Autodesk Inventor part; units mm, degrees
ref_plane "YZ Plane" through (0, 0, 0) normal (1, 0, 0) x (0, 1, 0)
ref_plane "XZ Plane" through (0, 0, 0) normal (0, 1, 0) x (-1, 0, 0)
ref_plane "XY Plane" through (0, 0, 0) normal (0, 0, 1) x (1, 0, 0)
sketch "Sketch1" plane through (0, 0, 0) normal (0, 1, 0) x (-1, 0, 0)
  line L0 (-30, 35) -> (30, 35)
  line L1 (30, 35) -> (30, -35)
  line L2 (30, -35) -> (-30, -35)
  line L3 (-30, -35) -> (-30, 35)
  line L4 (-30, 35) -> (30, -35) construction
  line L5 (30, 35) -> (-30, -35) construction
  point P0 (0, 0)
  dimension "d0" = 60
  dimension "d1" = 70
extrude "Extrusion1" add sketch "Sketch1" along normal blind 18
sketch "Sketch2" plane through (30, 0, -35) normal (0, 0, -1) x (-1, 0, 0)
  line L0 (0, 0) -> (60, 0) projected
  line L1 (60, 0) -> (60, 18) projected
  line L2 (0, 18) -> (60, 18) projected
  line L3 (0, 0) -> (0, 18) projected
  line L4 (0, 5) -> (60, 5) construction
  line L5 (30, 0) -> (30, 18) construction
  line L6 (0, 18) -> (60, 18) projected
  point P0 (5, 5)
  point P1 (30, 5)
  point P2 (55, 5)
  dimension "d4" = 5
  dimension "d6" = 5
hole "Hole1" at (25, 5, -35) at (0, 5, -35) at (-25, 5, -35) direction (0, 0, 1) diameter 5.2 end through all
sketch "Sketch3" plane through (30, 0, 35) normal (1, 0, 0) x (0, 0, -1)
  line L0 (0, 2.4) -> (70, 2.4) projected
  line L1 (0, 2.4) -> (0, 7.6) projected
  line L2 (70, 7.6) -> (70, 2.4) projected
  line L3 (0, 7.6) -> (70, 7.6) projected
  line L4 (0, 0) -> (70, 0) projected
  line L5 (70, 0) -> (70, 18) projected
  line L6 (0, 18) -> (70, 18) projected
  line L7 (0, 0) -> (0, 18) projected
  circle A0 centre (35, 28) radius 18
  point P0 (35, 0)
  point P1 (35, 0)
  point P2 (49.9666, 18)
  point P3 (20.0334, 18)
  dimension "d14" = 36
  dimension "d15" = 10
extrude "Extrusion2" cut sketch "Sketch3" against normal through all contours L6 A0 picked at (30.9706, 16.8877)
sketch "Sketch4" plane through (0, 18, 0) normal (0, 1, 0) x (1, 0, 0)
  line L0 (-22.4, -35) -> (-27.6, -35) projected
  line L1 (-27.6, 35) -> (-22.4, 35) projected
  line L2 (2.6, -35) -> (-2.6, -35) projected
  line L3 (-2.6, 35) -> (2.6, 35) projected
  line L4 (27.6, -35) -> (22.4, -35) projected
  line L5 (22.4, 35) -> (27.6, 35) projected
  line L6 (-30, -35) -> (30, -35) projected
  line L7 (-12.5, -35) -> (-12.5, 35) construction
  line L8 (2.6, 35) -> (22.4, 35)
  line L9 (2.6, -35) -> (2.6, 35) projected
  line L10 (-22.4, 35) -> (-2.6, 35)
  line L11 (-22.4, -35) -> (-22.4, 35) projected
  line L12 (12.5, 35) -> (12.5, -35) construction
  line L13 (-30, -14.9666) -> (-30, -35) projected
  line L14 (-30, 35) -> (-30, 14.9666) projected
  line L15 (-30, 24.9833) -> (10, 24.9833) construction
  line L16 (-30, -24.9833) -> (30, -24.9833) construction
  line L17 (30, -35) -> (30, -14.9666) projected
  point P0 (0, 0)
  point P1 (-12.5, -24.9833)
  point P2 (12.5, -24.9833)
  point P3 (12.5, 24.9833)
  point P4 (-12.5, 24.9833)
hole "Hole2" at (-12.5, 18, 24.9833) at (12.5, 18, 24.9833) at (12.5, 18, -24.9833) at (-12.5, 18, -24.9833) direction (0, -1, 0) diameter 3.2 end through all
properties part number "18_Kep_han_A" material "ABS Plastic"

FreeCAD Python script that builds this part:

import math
import FreeCAD as App
import Part
import Sketcher


def add_polygon(sketch, points):
    """Adds a closed chain of lines whose ends are joined by coincident constraints."""
    first, n = sketch.GeometryCount, len(points)
    for a, b in zip(points, points[1:] + points[:1]):
        sketch.addGeometry(Part.LineSegment(App.Vector(*a, 0), App.Vector(*b, 0)), False)
    for i in range(n):
        sketch.addConstraint(Sketcher.Constraint("Coincident", first + i, 2, first + (i + 1) % n, 1))

doc = App.newDocument("Part")
body = doc.addObject("PartDesign::Body", "Body")

# Sketch on XZ plane
sketch1 = doc.addObject("Sketcher::SketchObject", "Sketch")
body.addObject(sketch1)
sketch1.AttachmentSupport = (doc.XZ_Plane, [""])
sketch1.MapMode = "FlatFace"
add_polygon(sketch1, [(-30, 35), (30, 35), (30, -35), (-30, -35)])  # lines 0-3
sketch1.addConstraint(Sketcher.Constraint("Horizontal", 0))
sketch1.addConstraint(Sketcher.Constraint("Vertical", 1))
sketch1.addConstraint(Sketcher.Constraint("Horizontal", 2))
sketch1.addConstraint(Sketcher.Constraint("Vertical", 3))
sketch1.addConstraint(Sketcher.Constraint("Symmetric", 0, 2, 2, 2, -1, 1))
sketch1.addConstraint(Sketcher.Constraint("DistanceX", 0, 1, 0, 2, 60.0))
sketch1.addConstraint(Sketcher.Constraint("DistanceY", 1, 2, 1, 1, 70.0))
pad1 = doc.addObject("PartDesign::Pad", "Pad")
body.addObject(pad1)
pad1.Profile = sketch1
pad1.Length = 18
pad1.Reversed = True

# Sketch on XY plane
sketch2 = doc.addObject("Sketcher::SketchObject", "Sketch001")
body.addObject(sketch2)
sketch2.AttachmentSupport = (doc.XY_Plane, [""])
sketch2.MapMode = "FlatFace"
sketch2.AttachmentOffset = App.Placement(App.Vector(0, 0, -35), App.Rotation())
sketch2.addGeometry(Part.Circle(App.Vector(25, 5, 0), App.Vector(0, 0, 1), 2.6), False)
sketch2.addGeometry(Part.Circle(App.Vector(0, 5, 0), App.Vector(0, 0, 1), 2.6), False)
sketch2.addGeometry(Part.Circle(App.Vector(-25, 5, 0), App.Vector(0, 0, 1), 2.6), False)
sketch2.addConstraint(Sketcher.Constraint("Equal", 0, 1))
sketch2.addConstraint(Sketcher.Constraint("Equal", 1, 2))
sketch2.addConstraint(Sketcher.Constraint("Symmetric", 0, 3, 2, 3, -2))
sketch2.addConstraint(Sketcher.Constraint("PointOnObject", 1, 3, -2))
sketch2.addConstraint(Sketcher.Constraint("Horizontal", 0, 3, 1, 3))
sketch2.addConstraint(Sketcher.Constraint("Diameter", 0, 5.2))
sketch2.addConstraint(Sketcher.Constraint("DistanceX", -1, 1, 0, 3, 25.0))
sketch2.addConstraint(Sketcher.Constraint("DistanceY", -1, 1, 0, 3, 5.0))
doc.recompute()
hole = doc.addObject("PartDesign::Hole", "Hole")
body.addObject(hole)
hole.Profile = sketch2
hole.ThreadType = "None"
hole.Diameter = 5.2
hole.DepthType = "ThroughAll"
hole.Reversed = True

# Sketch on YZ plane
sketch3 = doc.addObject("Sketcher::SketchObject", "Sketch002")
body.addObject(sketch3)
sketch3.AttachmentSupport = (doc.YZ_Plane, [""])
sketch3.MapMode = "FlatFace"
sketch3.AttachmentOffset = App.Placement(App.Vector(0, 0, 30), App.Rotation())
sketch3.addGeometry(Part.LineSegment(App.Vector(18, -14.96663, 0), App.Vector(18, 14.96663, 0)), False)
sketch3.addGeometry(Part.ArcOfCircle(Part.Circle(App.Vector(28, 0, 0), App.Vector(0, 0, 1), 18), math.radians(123.748989), math.radians(236.251011)), False)
sketch3.addConstraint(Sketcher.Constraint("Coincident", 0, 1, 1, 2))
sketch3.addConstraint(Sketcher.Constraint("Coincident", 1, 1, 0, 2))
sketch3.addConstraint(Sketcher.Constraint("Vertical", 0))
sketch3.addConstraint(Sketcher.Constraint("PointOnObject", 1, 3, -1))
sketch3.addConstraint(Sketcher.Constraint("Radius", 1, 18.0))
sketch3.addConstraint(Sketcher.Constraint("DistanceX", 0, 1, 1, 3, 10.0))
sketch3.addConstraint(Sketcher.Constraint("DistanceX", -1, 1, 1, 3, 28.0))
pocket1 = doc.addObject("PartDesign::Pocket", "Pocket")
body.addObject(pocket1)
pocket1.Profile = sketch3
pocket1.Type = "ThroughAll"

# Sketch on XZ plane
sketch4 = doc.addObject("Sketcher::SketchObject", "Sketch003")
body.addObject(sketch4)
sketch4.AttachmentSupport = (doc.XZ_Plane, [""])
sketch4.MapMode = "FlatFace"
sketch4.AttachmentOffset = App.Placement(App.Vector(0, 0, -18), App.Rotation())
sketch4.addGeometry(Part.Circle(App.Vector(-12.5, 24.9833, 0), App.Vector(0, 0, 1), 1.6), False)
sketch4.addGeometry(Part.Circle(App.Vector(12.5, 24.9833, 0), App.Vector(0, 0, 1), 1.6), False)
sketch4.addGeometry(Part.Circle(App.Vector(12.5, -24.9833, 0), App.Vector(0, 0, 1), 1.6), False)
sketch4.addGeometry(Part.Circle(App.Vector(-12.5, -24.9833, 0), App.Vector(0, 0, 1), 1.6), False)
sketch4.addConstraint(Sketcher.Constraint("Equal", 0, 1))
sketch4.addConstraint(Sketcher.Constraint("Equal", 1, 2))
sketch4.addConstraint(Sketcher.Constraint("Equal", 2, 3))
sketch4.addConstraint(Sketcher.Constraint("Symmetric", 0, 3, 2, 3, -1, 1))
sketch4.addConstraint(Sketcher.Constraint("Symmetric", 1, 3, 3, 3, -1, 1))
sketch4.addConstraint(Sketcher.Constraint("Symmetric", 0, 3, 1, 3, -2))
sketch4.addConstraint(Sketcher.Constraint("Diameter", 0, 3.2))
sketch4.addConstraint(Sketcher.Constraint("DistanceX", 0, 3, 1, 3, 25.0))
sketch4.addConstraint(Sketcher.Constraint("DistanceY", -1, 1, 0, 3, 24.9833))
doc.recompute()
hole2 = doc.addObject("PartDesign::Hole", "Hole001")
body.addObject(hole2)
hole2.Profile = sketch4
hole2.ThreadType = "None"
hole2.Diameter = 3.2
hole2.DepthType = "ThroughAll"
hole2.Reversed = True

doc.recompute()
